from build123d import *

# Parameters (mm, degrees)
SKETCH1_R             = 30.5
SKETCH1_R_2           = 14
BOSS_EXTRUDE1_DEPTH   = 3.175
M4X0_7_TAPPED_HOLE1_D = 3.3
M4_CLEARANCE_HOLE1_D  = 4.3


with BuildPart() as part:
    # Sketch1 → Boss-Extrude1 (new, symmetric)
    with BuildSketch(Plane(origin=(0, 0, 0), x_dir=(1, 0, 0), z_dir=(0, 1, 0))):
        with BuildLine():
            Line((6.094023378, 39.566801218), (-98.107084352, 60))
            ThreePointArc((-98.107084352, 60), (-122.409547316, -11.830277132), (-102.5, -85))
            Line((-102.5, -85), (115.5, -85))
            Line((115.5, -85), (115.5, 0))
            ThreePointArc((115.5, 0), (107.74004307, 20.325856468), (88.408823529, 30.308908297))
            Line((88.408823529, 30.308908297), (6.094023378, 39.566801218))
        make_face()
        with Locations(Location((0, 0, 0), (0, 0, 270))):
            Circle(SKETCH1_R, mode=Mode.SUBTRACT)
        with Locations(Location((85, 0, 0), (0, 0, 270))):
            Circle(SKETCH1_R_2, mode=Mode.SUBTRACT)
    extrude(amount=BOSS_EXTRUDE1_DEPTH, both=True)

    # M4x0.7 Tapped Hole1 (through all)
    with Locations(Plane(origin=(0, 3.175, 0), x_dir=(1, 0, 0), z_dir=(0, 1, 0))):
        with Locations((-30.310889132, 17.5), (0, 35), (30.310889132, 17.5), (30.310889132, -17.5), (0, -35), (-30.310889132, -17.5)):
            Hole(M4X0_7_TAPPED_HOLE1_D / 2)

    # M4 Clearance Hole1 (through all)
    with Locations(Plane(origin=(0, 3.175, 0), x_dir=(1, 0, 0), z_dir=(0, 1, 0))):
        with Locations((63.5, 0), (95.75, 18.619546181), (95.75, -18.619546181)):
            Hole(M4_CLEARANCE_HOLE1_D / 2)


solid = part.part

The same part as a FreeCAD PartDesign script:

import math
import FreeCAD as App
import Part
import Sketcher

V = App.Vector
Q = App.Units.Quantity

doc = App.newDocument("Part")
body = doc.addObject("PartDesign::Body", "Body")

sketch1 = doc.addObject("Sketcher::SketchObject", "Sketch")
body.addObject(sketch1)
sketch1.AttachmentSupport = (doc.XZ_Plane, [""])
sketch1.MapMode = "FlatFace"
sketch1.addGeometry([
    Part.LineSegment(V(6, -40, 0), V(-98, -60, 0)),
    Part.ArcOfCircle(Part.Circle(V(8, 16, 0), V(0, 0, 1), 130), math.radians(148), math.radians(216)),
    Part.LineSegment(V(-102, 85, 0), V(116, 85, 0)),
    Part.LineSegment(V(116, 85, 0), V(116, 0, 0)),
    Part.ArcOfCircle(Part.Circle(V(85, 0, 0), V(0, 0, 1), 31), math.radians(-84), math.radians(0)),
    Part.LineSegment(V(88, -30, 0), V(6, -40, 0)),
    Part.Circle(V(0, 0, 0), V(0, 0, 1), 30),
    Part.Circle(V(85, 0, 0), V(0, 0, 1), 14),
], False)
sketch1.addConstraint([
    Sketcher.Constraint("Coincident", 0, 2, 1, 2),
    Sketcher.Constraint("Coincident", 1, 1, 2, 1),
    Sketcher.Constraint("Coincident", 2, 2, 3, 1),
    Sketcher.Constraint("Tangent", 3, 2, 4, 2),
    Sketcher.Constraint("Tangent", 4, 1, 5, 1),
    Sketcher.Constraint("Coincident", 5, 2, 0, 1),
    Sketcher.Constraint("Horizontal", 2),
    Sketcher.Constraint("Vertical", 3),
    Sketcher.Constraint("Coincident", 6, 3, -1, 1),
    Sketcher.Constraint("Coincident", 7, 3, 4, 3),
    Sketcher.Constraint("Equal", 4, 6),
    Sketcher.Constraint("PointOnObject", 4, 3, -1),
    Sketcher.Constraint("Diameter", 6, Q("61 mm")),
    Sketcher.Constraint("Diameter", 7, Q("28 mm")),
    Sketcher.Constraint("Radius", 1, Q("130 mm")),
    Sketcher.Constraint("DistanceX", 2, 1, 2, 2, Q("218 mm")),
    Sketcher.Constraint("DistanceY", 3, 2, 3, 1, Q("85 mm")),
    Sketcher.Constraint("DistanceX", -1, 1, 4, 3, Q("85 mm")),
    Sketcher.Constraint("DistanceY", 0, 2, -1, 1, Q("60 mm")),
    Sketcher.Constraint("DistanceY", 5, 2, -1, 1, Q("39.566801 mm")),
    Sketcher.Constraint("DistanceX", 5, 2, 4, 1, Q("82.3148 mm")),
    Sketcher.Constraint("DistanceX", 0, 2, 1, 3, Q("105.637918 mm")),
])
pad1 = doc.addObject("PartDesign::Pad", "Pad")
body.addObject(pad1)
pad1.Profile = sketch1
pad1.Length = 6.35
pad1.Midplane = True

sketch2 = doc.addObject("Sketcher::SketchObject", "Sketch001")
body.addObject(sketch2)
sketch2.AttachmentSupport = (doc.XZ_Plane, [""])
sketch2.MapMode = "FlatFace"
sketch2.AttachmentOffset = App.Placement(V(0, 0, -3.175), App.Rotation())
sketch2.addGeometry([
    Part.Circle(V(-30.3, -17.5, 0), V(0, 0, 1), 1.6),
    Part.Circle(V(0, -35, 0), V(0, 0, 1), 1.6),
    Part.Circle(V(30.3, -17.5, 0), V(0, 0, 1), 1.6),
    Part.Circle(V(30.3, 17.5, 0), V(0, 0, 1), 1.6),
    Part.Circle(V(0, 35, 0), V(0, 0, 1), 1.6),
    Part.Circle(V(-30.3, 17.5, 0), V(0, 0, 1), 1.6),
], False)
sketch2.addConstraint([
    Sketcher.Constraint("Equal", 0, 1),
    Sketcher.Constraint("Equal", 1, 2),
    Sketcher.Constraint("Equal", 2, 3),
    Sketcher.Constraint("Equal", 3, 4),
    Sketcher.Constraint("Equal", 4, 5),
    Sketcher.Constraint("Symmetric", 0, 3, 3, 3, -1, 1),
    Sketcher.Constraint("Symmetric", 1, 3, 4, 3, -1, 1),
    Sketcher.Constraint("Symmetric", 2, 3, 5, 3, -1, 1),
    Sketcher.Constraint("Symmetric", 0, 3, 2, 3, -2),
    Sketcher.Constraint("PointOnObject", 1, 3, -2),
    Sketcher.Constraint("Diameter", 0, Q("3.3 mm")),
    Sketcher.Constraint("DistanceY", 1, 3, -1, 1, Q("35 mm")),
    Sketcher.Constraint("DistanceY", 2, 3, 3, 3, Q("35 mm")),
    Sketcher.Constraint("DistanceX", 0, 3, -1, 1, Q("30.310889 mm")),
])
doc.recompute()
hole = doc.addObject("PartDesign::Hole", "Hole")
body.addObject(hole)
hole.Profile = sketch2
hole.ThreadType = "None"
hole.Diameter = 3.3
hole.DepthType = "ThroughAll"
hole.Reversed = True

sketch3 = doc.addObject("Sketcher::SketchObject", "Sketch002")
body.addObject(sketch3)
sketch3.AttachmentSupport = (doc.XZ_Plane, [""])
sketch3.MapMode = "FlatFace"
sketch3.AttachmentOffset = App.Placement(V(0, 0, -3.175), App.Rotation())
sketch3.addGeometry([
    Part.Circle(V(63.5, 0, 0), V(0, 0, 1), 2.1),
    Part.Circle(V(95.8, -18.6, 0), V(0, 0, 1), 2.1),
    Part.Circle(V(95.8, 18.6, 0), V(0, 0, 1), 2.1),
], False)
sketch3.addConstraint([
    Sketcher.Constraint("Equal", 0, 1),
    Sketcher.Constraint("Equal", 1, 2),
    Sketcher.Constraint("Symmetric", 1, 3, 2, 3, -1),
    Sketcher.Constraint("PointOnObject", 0, 3, -1),
    Sketcher.Constraint("Diameter", 0, Q("4.3 mm")),
    Sketcher.Constraint("DistanceX", -1, 1, 0, 3, Q("63.5 mm")),
    Sketcher.Constraint("DistanceX", -1, 1, 1, 3, Q("95.75 mm")),
    Sketcher.Constraint("DistanceY", 1, 3, -1, 1, Q("18.619546 mm")),
])
doc.recompute()
hole2 = doc.addObject("PartDesign::Hole", "Hole001")
body.addObject(hole2)
hole2.Profile = sketch3
hole2.ThreadType = "None"
hole2.Diameter = 4.3
hole2.DepthType = "ThroughAll"
hole2.Reversed = True

doc.recompute()
